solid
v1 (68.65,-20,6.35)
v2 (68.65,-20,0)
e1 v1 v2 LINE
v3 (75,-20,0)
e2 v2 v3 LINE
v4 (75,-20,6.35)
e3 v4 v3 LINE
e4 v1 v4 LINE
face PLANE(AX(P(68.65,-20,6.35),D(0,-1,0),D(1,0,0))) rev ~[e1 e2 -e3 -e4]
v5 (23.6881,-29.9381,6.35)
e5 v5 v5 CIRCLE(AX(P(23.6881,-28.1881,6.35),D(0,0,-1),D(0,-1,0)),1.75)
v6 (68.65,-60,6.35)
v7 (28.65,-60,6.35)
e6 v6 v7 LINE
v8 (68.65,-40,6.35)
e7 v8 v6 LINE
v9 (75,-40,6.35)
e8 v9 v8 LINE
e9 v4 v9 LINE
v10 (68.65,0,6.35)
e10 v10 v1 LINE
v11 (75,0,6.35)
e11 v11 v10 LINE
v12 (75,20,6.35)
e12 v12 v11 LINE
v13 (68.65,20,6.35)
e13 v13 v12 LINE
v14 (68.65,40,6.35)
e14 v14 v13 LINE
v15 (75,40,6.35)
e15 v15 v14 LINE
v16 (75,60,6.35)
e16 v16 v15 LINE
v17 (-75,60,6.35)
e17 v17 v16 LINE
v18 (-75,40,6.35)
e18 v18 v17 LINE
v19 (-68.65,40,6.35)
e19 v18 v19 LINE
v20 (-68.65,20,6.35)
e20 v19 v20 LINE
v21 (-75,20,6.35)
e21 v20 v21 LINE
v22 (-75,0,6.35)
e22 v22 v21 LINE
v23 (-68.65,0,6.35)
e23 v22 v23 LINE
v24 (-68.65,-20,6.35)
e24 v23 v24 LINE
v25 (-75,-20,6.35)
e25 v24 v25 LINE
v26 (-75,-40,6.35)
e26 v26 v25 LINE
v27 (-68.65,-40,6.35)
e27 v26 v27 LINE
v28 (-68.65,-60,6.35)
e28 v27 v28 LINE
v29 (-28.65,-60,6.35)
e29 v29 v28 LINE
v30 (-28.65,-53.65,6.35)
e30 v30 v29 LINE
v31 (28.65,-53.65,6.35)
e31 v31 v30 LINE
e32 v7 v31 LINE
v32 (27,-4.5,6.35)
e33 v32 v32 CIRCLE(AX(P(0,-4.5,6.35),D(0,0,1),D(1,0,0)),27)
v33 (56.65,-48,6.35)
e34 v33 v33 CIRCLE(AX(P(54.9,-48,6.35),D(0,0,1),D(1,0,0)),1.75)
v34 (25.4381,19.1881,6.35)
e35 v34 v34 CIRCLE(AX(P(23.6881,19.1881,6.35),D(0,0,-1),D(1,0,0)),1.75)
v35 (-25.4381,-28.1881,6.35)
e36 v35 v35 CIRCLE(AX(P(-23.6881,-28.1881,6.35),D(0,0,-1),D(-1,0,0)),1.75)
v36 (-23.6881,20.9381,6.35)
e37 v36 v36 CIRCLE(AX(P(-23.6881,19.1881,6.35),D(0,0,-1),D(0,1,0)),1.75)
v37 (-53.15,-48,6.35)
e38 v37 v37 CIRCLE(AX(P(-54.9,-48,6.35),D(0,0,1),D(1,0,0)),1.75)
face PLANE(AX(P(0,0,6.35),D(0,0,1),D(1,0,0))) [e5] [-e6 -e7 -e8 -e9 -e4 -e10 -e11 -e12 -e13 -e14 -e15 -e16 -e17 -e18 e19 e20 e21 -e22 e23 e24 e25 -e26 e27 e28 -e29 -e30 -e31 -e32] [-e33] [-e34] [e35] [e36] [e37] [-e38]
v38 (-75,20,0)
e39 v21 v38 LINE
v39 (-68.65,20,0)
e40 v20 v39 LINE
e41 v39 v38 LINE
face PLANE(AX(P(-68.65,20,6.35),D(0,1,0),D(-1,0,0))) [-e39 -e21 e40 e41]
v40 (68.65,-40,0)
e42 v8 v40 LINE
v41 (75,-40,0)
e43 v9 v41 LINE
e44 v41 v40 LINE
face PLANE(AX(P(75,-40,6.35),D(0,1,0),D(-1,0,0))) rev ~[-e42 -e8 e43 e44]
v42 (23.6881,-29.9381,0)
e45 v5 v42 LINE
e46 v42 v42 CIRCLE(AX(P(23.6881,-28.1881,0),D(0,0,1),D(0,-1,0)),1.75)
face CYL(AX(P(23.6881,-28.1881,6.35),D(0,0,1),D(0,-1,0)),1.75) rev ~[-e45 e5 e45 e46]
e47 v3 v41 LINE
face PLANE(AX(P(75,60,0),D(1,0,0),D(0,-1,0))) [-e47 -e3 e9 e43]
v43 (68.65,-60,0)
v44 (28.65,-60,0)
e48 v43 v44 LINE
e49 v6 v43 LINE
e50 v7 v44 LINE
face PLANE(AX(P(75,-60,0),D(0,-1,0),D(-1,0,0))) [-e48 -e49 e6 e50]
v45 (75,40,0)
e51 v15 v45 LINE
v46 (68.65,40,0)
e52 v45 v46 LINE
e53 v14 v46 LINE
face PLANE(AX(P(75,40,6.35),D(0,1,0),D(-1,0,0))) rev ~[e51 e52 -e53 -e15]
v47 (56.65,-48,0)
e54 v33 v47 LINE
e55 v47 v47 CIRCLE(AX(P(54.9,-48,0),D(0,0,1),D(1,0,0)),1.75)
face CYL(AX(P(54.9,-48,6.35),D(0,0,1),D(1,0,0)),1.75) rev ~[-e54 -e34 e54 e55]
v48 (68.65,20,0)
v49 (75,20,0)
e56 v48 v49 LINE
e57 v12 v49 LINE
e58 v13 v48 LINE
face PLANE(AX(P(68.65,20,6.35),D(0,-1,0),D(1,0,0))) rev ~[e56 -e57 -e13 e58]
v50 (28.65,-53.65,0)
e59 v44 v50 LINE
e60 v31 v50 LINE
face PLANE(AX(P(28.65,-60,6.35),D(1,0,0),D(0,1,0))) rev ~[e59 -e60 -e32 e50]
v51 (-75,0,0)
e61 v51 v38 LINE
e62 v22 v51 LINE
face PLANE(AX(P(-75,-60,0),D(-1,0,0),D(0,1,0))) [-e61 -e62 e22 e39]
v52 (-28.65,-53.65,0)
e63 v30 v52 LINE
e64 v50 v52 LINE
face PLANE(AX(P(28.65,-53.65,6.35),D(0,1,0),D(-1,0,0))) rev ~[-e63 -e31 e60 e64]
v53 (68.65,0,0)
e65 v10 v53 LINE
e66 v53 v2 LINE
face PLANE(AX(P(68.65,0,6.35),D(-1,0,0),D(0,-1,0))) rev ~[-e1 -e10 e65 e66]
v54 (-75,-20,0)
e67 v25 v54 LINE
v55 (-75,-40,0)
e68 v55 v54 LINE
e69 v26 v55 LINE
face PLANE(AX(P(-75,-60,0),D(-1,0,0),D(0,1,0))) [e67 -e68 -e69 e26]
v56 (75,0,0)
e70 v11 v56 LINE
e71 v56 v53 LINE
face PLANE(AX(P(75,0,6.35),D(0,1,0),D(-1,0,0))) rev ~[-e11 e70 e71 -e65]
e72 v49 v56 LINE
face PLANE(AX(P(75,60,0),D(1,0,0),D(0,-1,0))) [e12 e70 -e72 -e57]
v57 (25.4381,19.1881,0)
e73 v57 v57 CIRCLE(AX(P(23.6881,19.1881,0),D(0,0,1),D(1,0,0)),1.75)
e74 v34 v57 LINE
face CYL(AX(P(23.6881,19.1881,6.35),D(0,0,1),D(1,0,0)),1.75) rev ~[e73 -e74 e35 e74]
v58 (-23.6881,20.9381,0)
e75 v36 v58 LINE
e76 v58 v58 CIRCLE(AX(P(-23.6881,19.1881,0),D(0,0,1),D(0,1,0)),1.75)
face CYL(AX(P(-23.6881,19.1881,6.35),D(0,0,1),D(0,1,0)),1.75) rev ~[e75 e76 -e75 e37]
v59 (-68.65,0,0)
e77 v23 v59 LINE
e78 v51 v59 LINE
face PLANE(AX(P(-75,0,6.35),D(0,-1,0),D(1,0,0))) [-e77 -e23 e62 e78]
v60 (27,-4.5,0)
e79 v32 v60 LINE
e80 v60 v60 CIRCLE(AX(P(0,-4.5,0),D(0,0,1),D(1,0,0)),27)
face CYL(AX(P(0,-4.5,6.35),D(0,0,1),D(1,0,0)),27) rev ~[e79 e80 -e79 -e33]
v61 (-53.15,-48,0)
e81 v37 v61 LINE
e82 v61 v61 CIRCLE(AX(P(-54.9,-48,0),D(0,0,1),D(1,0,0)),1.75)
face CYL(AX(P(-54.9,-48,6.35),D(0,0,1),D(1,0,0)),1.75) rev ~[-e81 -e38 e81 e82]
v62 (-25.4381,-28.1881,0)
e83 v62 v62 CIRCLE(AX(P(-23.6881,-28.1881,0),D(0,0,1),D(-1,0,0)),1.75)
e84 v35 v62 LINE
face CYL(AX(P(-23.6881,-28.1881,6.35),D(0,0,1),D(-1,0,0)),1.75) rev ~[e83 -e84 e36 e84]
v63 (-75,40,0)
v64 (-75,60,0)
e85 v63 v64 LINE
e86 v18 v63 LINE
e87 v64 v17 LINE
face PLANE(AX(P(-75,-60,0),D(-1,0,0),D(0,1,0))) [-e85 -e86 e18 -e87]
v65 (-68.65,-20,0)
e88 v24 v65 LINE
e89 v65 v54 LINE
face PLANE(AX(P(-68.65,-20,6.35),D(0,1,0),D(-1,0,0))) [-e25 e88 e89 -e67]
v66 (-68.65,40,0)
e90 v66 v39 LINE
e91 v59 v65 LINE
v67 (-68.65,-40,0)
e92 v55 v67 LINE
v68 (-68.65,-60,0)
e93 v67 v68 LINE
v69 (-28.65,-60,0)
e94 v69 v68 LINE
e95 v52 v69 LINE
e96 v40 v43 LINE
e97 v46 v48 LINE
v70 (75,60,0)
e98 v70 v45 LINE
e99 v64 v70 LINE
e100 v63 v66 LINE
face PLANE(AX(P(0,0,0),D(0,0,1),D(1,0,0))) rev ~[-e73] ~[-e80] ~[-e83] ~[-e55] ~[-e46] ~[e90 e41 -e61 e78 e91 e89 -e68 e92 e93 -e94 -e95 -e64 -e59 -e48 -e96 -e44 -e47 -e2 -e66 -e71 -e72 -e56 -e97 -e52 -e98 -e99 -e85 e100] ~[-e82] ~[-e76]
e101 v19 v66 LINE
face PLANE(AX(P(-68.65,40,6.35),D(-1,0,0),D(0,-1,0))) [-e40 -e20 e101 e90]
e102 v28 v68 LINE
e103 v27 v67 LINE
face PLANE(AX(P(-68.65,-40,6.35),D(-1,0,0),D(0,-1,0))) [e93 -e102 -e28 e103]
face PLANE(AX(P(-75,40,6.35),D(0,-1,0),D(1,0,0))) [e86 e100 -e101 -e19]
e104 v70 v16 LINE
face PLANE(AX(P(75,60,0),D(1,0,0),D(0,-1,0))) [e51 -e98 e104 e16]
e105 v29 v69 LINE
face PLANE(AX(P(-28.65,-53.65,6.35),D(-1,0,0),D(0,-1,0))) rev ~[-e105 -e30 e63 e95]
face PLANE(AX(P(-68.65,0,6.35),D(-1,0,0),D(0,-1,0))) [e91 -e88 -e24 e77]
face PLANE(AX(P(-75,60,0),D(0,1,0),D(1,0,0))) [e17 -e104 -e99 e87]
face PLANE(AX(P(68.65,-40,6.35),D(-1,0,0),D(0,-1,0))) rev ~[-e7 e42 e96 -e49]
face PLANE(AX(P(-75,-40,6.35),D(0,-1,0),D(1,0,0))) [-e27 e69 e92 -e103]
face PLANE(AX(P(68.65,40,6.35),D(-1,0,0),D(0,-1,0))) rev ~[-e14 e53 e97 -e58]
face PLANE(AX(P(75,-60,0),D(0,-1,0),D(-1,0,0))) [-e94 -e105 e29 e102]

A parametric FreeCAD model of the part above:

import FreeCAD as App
import Part
import Sketcher
from FreeCAD import Vector
Q = App.Units.Quantity

doc = App.newDocument("Part")
body = doc.addObject("PartDesign::Body", "Body")

# Sketch on XY plane
sketch1 = body.newObject("Sketcher::SketchObject", "Sketch")
sketch1.AttachmentSupport = (doc.getObject("XY_Plane"), [""])
sketch1.MapMode = "FlatFace"
sketch1.addGeometry([
    Part.LineSegment(Vector(75, 60, 0), Vector(-75, 60, 0)),
    Part.LineSegment(Vector(-75, 60, 0), Vector(-75, -60, 0)),
    Part.LineSegment(Vector(-75, -60, 0), Vector(75, -60, 0)),
    Part.LineSegment(Vector(75, -60, 0), Vector(75, 60, 0)),
], False)
sketch1.addConstraint([
    Sketcher.Constraint("Coincident", 0, 2, 1, 1),
    Sketcher.Constraint("Coincident", 1, 2, 2, 1),
    Sketcher.Constraint("Coincident", 2, 2, 3, 1),
    Sketcher.Constraint("Coincident", 3, 2, 0, 1),
    Sketcher.Constraint("Horizontal", 0),
    Sketcher.Constraint("Vertical", 1),
    Sketcher.Constraint("Horizontal", 2),
    Sketcher.Constraint("Vertical", 3),
    Sketcher.Constraint("Symmetric", 0, 2, 2, 2, -1, 1),
    Sketcher.Constraint("DistanceX", 0, 2, 0, 1, Q("150 mm")),
    Sketcher.Constraint("DistanceY", 1, 2, 1, 1, Q("120 mm")),
])
pad1 = body.newObject("PartDesign::Pad", "Pad")
pad1.Profile = sketch1
pad1.Length = 6.35

# Sketch on XY plane
sketch2 = body.newObject("Sketcher::SketchObject", "Sketch001")
sketch2.AttachmentSupport = (doc.getObject("XY_Plane"), [""])
sketch2.MapMode = "FlatFace"
sketch2.AttachmentOffset = App.Placement(Vector(0, 0, 6.35), App.Rotation())
sketch2.addGeometry([
    Part.LineSegment(Vector(-68.65, 40, 0), Vector(-75, 40, 0)),  # 0
    Part.LineSegment(Vector(-75, 40, 0), Vector(-75, 20, 0)),  # 1
    Part.LineSegment(Vector(-75, 20, 0), Vector(-68.65, 20, 0)),  # 2
    Part.LineSegment(Vector(-68.65, 20, 0), Vector(-68.65, 40, 0)),  # 3
    Part.LineSegment(Vector(-68.65, 0, 0), Vector(-75, 0, 0)),  # 4
    Part.LineSegment(Vector(-75, 0, 0), Vector(-75, -20, 0)),  # 5
    Part.LineSegment(Vector(-75, -20, 0), Vector(-68.65, -20, 0)),  # 6
    Part.LineSegment(Vector(-68.65, -20, 0), Vector(-68.65, 0, 0)),  # 7
    Part.LineSegment(Vector(75, 20, 0), Vector(75, 40, 0)),  # 8
    Part.LineSegment(Vector(75, 40, 0), Vector(68.65, 40, 0)),  # 9
    Part.LineSegment(Vector(68.65, 40, 0), Vector(68.65, 20, 0)),  # 10
    Part.LineSegment(Vector(68.65, 20, 0), Vector(75, 20, 0)),  # 11
    Part.LineSegment(Vector(-68.65, -40, 0), Vector(-75, -40, 0)),  # 12
    Part.LineSegment(Vector(-75, -40, 0), Vector(-75, -60, 0)),  # 13
    Part.LineSegment(Vector(-75, -60, 0), Vector(-68.65, -60, 0)),  # 14
    Part.LineSegment(Vector(-68.65, -60, 0), Vector(-68.65, -40, 0)),  # 15
    Part.LineSegment(Vector(75, -20, 0), Vector(75, 0, 0)),  # 16
    Part.LineSegment(Vector(75, 0, 0), Vector(68.65, 0, 0)),  # 17
    Part.LineSegment(Vector(68.65, 0, 0), Vector(68.65, -20, 0)),  # 18
    Part.LineSegment(Vector(68.65, -20, 0), Vector(75, -20, 0)),  # 19
    Part.LineSegment(Vector(-28.65, -53.65, 0), Vector(-28.65, -60, 0)),  # 20
    Part.LineSegment(Vector(-28.65, -60, 0), Vector(28.65, -60, 0)),  # 21
    Part.LineSegment(Vector(28.65, -60, 0), Vector(28.65, -53.65, 0)),  # 22
    Part.LineSegment(Vector(28.65, -53.65, 0), Vector(-28.65, -53.65, 0)),  # 23
    Part.LineSegment(Vector(75, -60, 0), Vector(75, -40, 0)),  # 24
    Part.LineSegment(Vector(75, -40, 0), Vector(68.65, -40, 0)),  # 25
    Part.LineSegment(Vector(68.65, -40, 0), Vector(68.65, -60, 0)),  # 26
    Part.LineSegment(Vector(68.65, -60, 0), Vector(75, -60, 0)),  # 27
], False)
sketch2.addConstraint([
    Sketcher.Constraint("Coincident", 0, 2, 1, 1),
    Sketcher.Constraint("Coincident", 1, 2, 2, 1),
    Sketcher.Constraint("Coincident", 2, 2, 3, 1),
    Sketcher.Constraint("Coincident", 3, 2, 0, 1),
    Sketcher.Constraint("Coincident", 4, 2, 5, 1),
    Sketcher.Constraint("Coincident", 5, 2, 6, 1),
    Sketcher.Constraint("Coincident", 6, 2, 7, 1),
    Sketcher.Constraint("Coincident", 7, 2, 4, 1),
    Sketcher.Constraint("Coincident", 8, 2, 9, 1),
    Sketcher.Constraint("Coincident", 9, 2, 10, 1),
    Sketcher.Constraint("Coincident", 10, 2, 11, 1),
    Sketcher.Constraint("Coincident", 11, 2, 8, 1),
    Sketcher.Constraint("Coincident", 12, 2, 13, 1),
    Sketcher.Constraint("Coincident", 13, 2, 14, 1),
    Sketcher.Constraint("Coincident", 14, 2, 15, 1),
    Sketcher.Constraint("Coincident", 15, 2, 12, 1),
    Sketcher.Constraint("Coincident", 16, 2, 17, 1),
    Sketcher.Constraint("Coincident", 17, 2, 18, 1),
    Sketcher.Constraint("Coincident", 18, 2, 19, 1),
    Sketcher.Constraint("Coincident", 19, 2, 16, 1),
    Sketcher.Constraint("Coincident", 20, 2, 21, 1),
    Sketcher.Constraint("Coincident", 21, 2, 22, 1),
    Sketcher.Constraint("Coincident", 22, 2, 23, 1),
    Sketcher.Constraint("Coincident", 23, 2, 20, 1),
    Sketcher.Constraint("Coincident", 24, 2, 25, 1),
    Sketcher.Constraint("Coincident", 25, 2, 26, 1),
    Sketcher.Constraint("Coincident", 26, 2, 27, 1),
    Sketcher.Constraint("Coincident", 27, 2, 24, 1),
    Sketcher.Constraint("Horizontal", 0),
    Sketcher.Constraint("Vertical", 1),
    Sketcher.Constraint("Horizontal", 2),
    Sketcher.Constraint("Vertical", 3),
    Sketcher.Constraint("Horizontal", 4),
    Sketcher.Constraint("Vertical", 5),
    Sketcher.Constraint("Horizontal", 6),
    Sketcher.Constraint("Vertical", 7),
    Sketcher.Constraint("Vertical", 8),
    Sketcher.Constraint("Horizontal", 9),
    Sketcher.Constraint("Vertical", 10),
    Sketcher.Constraint("Horizontal", 11),
    Sketcher.Constraint("Horizontal", 12),
    Sketcher.Constraint("Vertical", 13),
    Sketcher.Constraint("Horizontal", 14),
    Sketcher.Constraint("Vertical", 15),
    Sketcher.Constraint("Vertical", 16),
    Sketcher.Constraint("Horizontal", 17),
    Sketcher.Constraint("Vertical", 18),
    Sketcher.Constraint("Horizontal", 19),
    Sketcher.Constraint("Vertical", 20),
    Sketcher.Constraint("Horizontal", 21),
    Sketcher.Constraint("Vertical", 22),
    Sketcher.Constraint("Horizontal", 23),
    Sketcher.Constraint("Vertical", 24),
    Sketcher.Constraint("Horizontal", 25),
    Sketcher.Constraint("Vertical", 26),
    Sketcher.Constraint("Horizontal", 27),
    Sketcher.Constraint("Symmetric", 6, 2, 10, 2, -1, 1),
    Sketcher.Constraint("Symmetric", 8, 2, 12, 2, -1, 1),
    Sketcher.Constraint("Symmetric", 4, 2, 16, 2, -1, 1),
    Sketcher.Constraint("Symmetric", 2, 2, 18, 2, -1, 1),
    Sketcher.Constraint("Symmetric", 0, 2, 24, 2, -1, 1),
    Sketcher.Constraint("Symmetric", 0, 2, 8, 2, -2),
    Sketcher.Constraint("Symmetric", 2, 2, 10, 2, -2),
    Sketcher.Constraint("Symmetric", 14, 2, 26, 2, -2),
    Sketcher.Constraint("PointOnObject", 4, 2, -1),
    Sketcher.Constraint("Horizontal", 14, 2, 20, 2),
    Sketcher.Constraint("Vertical", 1, 2, 4, 2),
    Sketcher.Constraint("Vertical", 7, 2, 14, 2),
    Sketcher.Constraint("Equal", 3, 5),
    Sketcher.Constraint("Equal", 10, 13),
    Sketcher.Constraint("Equal", 27, 20),
    Sketcher.Constraint("DistanceY", 1, 2, 1, 1, Q("20 mm")),
    Sketcher.Constraint("DistanceX", 21, 1, 21, 2, Q("57.3 mm")),
    Sketcher.Constraint("DistanceX", 0, 2, 0, 1, Q("6.35 mm")),
    Sketcher.Constraint("DistanceX", 13, 2, 20, 2, Q("46.35 mm")),
    Sketcher.Constraint("DistanceX", 21, 2, 19, 2, Q("46.35 mm")),
])
pocket1 = body.newObject("PartDesign::Pocket", "Pocket")
pocket1.Profile = sketch2
pocket1.Type = "ThroughAll"

# Sketch on XY plane
sketch3 = body.newObject("Sketcher::SketchObject", "Sketch002")
sketch3.AttachmentSupport = (doc.getObject("XY_Plane"), [""])
sketch3.MapMode = "FlatFace"
sketch3.AttachmentOffset = App.Placement(Vector(0, 0, 6.35), App.Rotation())
sketch3.addGeometry(Part.Circle(Vector(0, -4.5, 0), Vector(0, 0, 1), 27), False)
sketch3.addConstraint([
    Sketcher.Constraint("PointOnObject", 0, 3, -2),
    Sketcher.Constraint("Diameter", 0, Q("54 mm")),
    Sketcher.Constraint("DistanceY", 0, 3, -1, 1, Q("4.5 mm")),
])
pocket2 = body.newObject("PartDesign::Pocket", "Pocket001")
pocket2.Profile = sketch3
pocket2.Type = "ThroughAll"

# Sketch on XY plane
sketch4 = body.newObject("Sketcher::SketchObject", "Sketch003")
sketch4.AttachmentSupport = (doc.getObject("XY_Plane"), [""])
sketch4.MapMode = "FlatFace"
sketch4.AttachmentOffset = App.Placement(Vector(0, 0, 6.35), App.Rotation())
sketch4.addGeometry(Part.Circle(Vector(23.6881, 19.1881, 0), Vector(0, 0, 1), 1.75), False)
sketch4.addConstraint([
    Sketcher.Constraint("Diameter", 0, Q("3.5 mm")),
    Sketcher.Constraint("DistanceX", -1, 1, 0, 3, Q("23.688 mm")),
    Sketcher.Constraint("DistanceY", -1, 1, 0, 3, Q("19.188 mm")),
])
pocket3 = body.newObject("PartDesign::Pocket", "Pocket002")
pocket3.Profile = sketch4
pocket3.Type = "ThroughAll"
doc.recompute()

datumline = body.newObject("PartDesign::Line", "DatumLine")
datumline.Placement = App.Placement(Vector(0, -4.5, 0), App.Rotation(Vector(0, 0, 1), Vector(0, 0, 1)))
polarpattern = body.newObject("PartDesign::PolarPattern", "PolarPattern")
polarpattern.Originals = [pocket3]
polarpattern.Axis = (datumline, [""])
polarpattern.Angle = 360
polarpattern.Occurrences = 4
body.Tip = polarpattern

# Sketch on XY plane
sketch5 = body.newObject("Sketcher::SketchObject", "Sketch004")
sketch5.AttachmentSupport = (doc.getObject("XY_Plane"), [""])
sketch5.MapMode = "FlatFace"
sketch5.AttachmentOffset = App.Placement(Vector(0, 0, 6.35), App.Rotation())
sketch5.addGeometry([
    Part.Circle(Vector(-54.9, -48, 0), Vector(0, 0, 1), 1.75),
    Part.Circle(Vector(54.9, -48, 0), Vector(0, 0, 1), 1.75),
], False)
sketch5.addConstraint([
    Sketcher.Constraint("Equal", 0, 1),
    Sketcher.Constraint("Symmetric", 0, 3, 1, 3, -2),
    Sketcher.Constraint("Diameter", 0, Q("3.5 mm")),
    Sketcher.Constraint("DistanceY", 0, 3, -1, 1, Q("48 mm")),
    Sketcher.Constraint("DistanceX", 0, 3, -1, 1, Q("54.9 mm")),
])
pocket4 = body.newObject("PartDesign::Pocket", "Pocket003")
pocket4.Profile = sketch5
pocket4.Length = 10

doc.recompute()
